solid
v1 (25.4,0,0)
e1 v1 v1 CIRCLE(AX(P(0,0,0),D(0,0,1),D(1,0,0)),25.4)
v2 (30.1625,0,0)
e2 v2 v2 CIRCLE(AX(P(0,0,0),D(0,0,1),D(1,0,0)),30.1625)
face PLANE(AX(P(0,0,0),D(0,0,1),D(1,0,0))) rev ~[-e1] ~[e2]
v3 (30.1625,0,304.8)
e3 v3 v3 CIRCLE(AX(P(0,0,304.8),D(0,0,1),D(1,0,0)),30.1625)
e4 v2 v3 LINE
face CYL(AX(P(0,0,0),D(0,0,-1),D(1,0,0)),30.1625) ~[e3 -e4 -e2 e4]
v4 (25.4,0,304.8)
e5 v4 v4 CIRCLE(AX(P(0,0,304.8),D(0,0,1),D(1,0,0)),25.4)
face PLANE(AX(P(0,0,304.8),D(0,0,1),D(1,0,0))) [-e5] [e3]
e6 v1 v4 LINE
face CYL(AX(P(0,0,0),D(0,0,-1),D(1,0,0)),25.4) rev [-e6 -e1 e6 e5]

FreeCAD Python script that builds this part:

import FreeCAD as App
import Part
import Sketcher
from FreeCAD import Vector
Q = App.Units.Quantity

doc = App.newDocument("Part")
body = doc.addObject("PartDesign::Body", "Body")

# Sketch on XY plane
sketch1 = body.newObject("Sketcher::SketchObject", "Sketch")
sketch1.AttachmentSupport = (doc.getObject("XY_Plane"), [""])
sketch1.MapMode = "FlatFace"
sketch1.addGeometry(Part.Circle(Vector(0, 0, 0), Vector(0, 0, 1), 30), False)
sketch1.addGeometry(Part.Circle(Vector(0, 0, 0), Vector(0, 0, 1), 25), False)
sketch1.addConstraint(Sketcher.Constraint("Coincident", 0, 3, -1, 1))
sketch1.addConstraint(Sketcher.Constraint("Coincident", 1, 3, -1, 1))
sketch1.addConstraint(Sketcher.Constraint("Diameter", 1, Q("2 in")))
sketch1.addConstraint(Sketcher.Constraint("Diameter", 0, Q("2.375 in")))
pad1 = body.newObject("PartDesign::Pad", "Pad")
pad1.Profile = sketch1
pad1.Length = Q("12 in")

doc.recompute()
